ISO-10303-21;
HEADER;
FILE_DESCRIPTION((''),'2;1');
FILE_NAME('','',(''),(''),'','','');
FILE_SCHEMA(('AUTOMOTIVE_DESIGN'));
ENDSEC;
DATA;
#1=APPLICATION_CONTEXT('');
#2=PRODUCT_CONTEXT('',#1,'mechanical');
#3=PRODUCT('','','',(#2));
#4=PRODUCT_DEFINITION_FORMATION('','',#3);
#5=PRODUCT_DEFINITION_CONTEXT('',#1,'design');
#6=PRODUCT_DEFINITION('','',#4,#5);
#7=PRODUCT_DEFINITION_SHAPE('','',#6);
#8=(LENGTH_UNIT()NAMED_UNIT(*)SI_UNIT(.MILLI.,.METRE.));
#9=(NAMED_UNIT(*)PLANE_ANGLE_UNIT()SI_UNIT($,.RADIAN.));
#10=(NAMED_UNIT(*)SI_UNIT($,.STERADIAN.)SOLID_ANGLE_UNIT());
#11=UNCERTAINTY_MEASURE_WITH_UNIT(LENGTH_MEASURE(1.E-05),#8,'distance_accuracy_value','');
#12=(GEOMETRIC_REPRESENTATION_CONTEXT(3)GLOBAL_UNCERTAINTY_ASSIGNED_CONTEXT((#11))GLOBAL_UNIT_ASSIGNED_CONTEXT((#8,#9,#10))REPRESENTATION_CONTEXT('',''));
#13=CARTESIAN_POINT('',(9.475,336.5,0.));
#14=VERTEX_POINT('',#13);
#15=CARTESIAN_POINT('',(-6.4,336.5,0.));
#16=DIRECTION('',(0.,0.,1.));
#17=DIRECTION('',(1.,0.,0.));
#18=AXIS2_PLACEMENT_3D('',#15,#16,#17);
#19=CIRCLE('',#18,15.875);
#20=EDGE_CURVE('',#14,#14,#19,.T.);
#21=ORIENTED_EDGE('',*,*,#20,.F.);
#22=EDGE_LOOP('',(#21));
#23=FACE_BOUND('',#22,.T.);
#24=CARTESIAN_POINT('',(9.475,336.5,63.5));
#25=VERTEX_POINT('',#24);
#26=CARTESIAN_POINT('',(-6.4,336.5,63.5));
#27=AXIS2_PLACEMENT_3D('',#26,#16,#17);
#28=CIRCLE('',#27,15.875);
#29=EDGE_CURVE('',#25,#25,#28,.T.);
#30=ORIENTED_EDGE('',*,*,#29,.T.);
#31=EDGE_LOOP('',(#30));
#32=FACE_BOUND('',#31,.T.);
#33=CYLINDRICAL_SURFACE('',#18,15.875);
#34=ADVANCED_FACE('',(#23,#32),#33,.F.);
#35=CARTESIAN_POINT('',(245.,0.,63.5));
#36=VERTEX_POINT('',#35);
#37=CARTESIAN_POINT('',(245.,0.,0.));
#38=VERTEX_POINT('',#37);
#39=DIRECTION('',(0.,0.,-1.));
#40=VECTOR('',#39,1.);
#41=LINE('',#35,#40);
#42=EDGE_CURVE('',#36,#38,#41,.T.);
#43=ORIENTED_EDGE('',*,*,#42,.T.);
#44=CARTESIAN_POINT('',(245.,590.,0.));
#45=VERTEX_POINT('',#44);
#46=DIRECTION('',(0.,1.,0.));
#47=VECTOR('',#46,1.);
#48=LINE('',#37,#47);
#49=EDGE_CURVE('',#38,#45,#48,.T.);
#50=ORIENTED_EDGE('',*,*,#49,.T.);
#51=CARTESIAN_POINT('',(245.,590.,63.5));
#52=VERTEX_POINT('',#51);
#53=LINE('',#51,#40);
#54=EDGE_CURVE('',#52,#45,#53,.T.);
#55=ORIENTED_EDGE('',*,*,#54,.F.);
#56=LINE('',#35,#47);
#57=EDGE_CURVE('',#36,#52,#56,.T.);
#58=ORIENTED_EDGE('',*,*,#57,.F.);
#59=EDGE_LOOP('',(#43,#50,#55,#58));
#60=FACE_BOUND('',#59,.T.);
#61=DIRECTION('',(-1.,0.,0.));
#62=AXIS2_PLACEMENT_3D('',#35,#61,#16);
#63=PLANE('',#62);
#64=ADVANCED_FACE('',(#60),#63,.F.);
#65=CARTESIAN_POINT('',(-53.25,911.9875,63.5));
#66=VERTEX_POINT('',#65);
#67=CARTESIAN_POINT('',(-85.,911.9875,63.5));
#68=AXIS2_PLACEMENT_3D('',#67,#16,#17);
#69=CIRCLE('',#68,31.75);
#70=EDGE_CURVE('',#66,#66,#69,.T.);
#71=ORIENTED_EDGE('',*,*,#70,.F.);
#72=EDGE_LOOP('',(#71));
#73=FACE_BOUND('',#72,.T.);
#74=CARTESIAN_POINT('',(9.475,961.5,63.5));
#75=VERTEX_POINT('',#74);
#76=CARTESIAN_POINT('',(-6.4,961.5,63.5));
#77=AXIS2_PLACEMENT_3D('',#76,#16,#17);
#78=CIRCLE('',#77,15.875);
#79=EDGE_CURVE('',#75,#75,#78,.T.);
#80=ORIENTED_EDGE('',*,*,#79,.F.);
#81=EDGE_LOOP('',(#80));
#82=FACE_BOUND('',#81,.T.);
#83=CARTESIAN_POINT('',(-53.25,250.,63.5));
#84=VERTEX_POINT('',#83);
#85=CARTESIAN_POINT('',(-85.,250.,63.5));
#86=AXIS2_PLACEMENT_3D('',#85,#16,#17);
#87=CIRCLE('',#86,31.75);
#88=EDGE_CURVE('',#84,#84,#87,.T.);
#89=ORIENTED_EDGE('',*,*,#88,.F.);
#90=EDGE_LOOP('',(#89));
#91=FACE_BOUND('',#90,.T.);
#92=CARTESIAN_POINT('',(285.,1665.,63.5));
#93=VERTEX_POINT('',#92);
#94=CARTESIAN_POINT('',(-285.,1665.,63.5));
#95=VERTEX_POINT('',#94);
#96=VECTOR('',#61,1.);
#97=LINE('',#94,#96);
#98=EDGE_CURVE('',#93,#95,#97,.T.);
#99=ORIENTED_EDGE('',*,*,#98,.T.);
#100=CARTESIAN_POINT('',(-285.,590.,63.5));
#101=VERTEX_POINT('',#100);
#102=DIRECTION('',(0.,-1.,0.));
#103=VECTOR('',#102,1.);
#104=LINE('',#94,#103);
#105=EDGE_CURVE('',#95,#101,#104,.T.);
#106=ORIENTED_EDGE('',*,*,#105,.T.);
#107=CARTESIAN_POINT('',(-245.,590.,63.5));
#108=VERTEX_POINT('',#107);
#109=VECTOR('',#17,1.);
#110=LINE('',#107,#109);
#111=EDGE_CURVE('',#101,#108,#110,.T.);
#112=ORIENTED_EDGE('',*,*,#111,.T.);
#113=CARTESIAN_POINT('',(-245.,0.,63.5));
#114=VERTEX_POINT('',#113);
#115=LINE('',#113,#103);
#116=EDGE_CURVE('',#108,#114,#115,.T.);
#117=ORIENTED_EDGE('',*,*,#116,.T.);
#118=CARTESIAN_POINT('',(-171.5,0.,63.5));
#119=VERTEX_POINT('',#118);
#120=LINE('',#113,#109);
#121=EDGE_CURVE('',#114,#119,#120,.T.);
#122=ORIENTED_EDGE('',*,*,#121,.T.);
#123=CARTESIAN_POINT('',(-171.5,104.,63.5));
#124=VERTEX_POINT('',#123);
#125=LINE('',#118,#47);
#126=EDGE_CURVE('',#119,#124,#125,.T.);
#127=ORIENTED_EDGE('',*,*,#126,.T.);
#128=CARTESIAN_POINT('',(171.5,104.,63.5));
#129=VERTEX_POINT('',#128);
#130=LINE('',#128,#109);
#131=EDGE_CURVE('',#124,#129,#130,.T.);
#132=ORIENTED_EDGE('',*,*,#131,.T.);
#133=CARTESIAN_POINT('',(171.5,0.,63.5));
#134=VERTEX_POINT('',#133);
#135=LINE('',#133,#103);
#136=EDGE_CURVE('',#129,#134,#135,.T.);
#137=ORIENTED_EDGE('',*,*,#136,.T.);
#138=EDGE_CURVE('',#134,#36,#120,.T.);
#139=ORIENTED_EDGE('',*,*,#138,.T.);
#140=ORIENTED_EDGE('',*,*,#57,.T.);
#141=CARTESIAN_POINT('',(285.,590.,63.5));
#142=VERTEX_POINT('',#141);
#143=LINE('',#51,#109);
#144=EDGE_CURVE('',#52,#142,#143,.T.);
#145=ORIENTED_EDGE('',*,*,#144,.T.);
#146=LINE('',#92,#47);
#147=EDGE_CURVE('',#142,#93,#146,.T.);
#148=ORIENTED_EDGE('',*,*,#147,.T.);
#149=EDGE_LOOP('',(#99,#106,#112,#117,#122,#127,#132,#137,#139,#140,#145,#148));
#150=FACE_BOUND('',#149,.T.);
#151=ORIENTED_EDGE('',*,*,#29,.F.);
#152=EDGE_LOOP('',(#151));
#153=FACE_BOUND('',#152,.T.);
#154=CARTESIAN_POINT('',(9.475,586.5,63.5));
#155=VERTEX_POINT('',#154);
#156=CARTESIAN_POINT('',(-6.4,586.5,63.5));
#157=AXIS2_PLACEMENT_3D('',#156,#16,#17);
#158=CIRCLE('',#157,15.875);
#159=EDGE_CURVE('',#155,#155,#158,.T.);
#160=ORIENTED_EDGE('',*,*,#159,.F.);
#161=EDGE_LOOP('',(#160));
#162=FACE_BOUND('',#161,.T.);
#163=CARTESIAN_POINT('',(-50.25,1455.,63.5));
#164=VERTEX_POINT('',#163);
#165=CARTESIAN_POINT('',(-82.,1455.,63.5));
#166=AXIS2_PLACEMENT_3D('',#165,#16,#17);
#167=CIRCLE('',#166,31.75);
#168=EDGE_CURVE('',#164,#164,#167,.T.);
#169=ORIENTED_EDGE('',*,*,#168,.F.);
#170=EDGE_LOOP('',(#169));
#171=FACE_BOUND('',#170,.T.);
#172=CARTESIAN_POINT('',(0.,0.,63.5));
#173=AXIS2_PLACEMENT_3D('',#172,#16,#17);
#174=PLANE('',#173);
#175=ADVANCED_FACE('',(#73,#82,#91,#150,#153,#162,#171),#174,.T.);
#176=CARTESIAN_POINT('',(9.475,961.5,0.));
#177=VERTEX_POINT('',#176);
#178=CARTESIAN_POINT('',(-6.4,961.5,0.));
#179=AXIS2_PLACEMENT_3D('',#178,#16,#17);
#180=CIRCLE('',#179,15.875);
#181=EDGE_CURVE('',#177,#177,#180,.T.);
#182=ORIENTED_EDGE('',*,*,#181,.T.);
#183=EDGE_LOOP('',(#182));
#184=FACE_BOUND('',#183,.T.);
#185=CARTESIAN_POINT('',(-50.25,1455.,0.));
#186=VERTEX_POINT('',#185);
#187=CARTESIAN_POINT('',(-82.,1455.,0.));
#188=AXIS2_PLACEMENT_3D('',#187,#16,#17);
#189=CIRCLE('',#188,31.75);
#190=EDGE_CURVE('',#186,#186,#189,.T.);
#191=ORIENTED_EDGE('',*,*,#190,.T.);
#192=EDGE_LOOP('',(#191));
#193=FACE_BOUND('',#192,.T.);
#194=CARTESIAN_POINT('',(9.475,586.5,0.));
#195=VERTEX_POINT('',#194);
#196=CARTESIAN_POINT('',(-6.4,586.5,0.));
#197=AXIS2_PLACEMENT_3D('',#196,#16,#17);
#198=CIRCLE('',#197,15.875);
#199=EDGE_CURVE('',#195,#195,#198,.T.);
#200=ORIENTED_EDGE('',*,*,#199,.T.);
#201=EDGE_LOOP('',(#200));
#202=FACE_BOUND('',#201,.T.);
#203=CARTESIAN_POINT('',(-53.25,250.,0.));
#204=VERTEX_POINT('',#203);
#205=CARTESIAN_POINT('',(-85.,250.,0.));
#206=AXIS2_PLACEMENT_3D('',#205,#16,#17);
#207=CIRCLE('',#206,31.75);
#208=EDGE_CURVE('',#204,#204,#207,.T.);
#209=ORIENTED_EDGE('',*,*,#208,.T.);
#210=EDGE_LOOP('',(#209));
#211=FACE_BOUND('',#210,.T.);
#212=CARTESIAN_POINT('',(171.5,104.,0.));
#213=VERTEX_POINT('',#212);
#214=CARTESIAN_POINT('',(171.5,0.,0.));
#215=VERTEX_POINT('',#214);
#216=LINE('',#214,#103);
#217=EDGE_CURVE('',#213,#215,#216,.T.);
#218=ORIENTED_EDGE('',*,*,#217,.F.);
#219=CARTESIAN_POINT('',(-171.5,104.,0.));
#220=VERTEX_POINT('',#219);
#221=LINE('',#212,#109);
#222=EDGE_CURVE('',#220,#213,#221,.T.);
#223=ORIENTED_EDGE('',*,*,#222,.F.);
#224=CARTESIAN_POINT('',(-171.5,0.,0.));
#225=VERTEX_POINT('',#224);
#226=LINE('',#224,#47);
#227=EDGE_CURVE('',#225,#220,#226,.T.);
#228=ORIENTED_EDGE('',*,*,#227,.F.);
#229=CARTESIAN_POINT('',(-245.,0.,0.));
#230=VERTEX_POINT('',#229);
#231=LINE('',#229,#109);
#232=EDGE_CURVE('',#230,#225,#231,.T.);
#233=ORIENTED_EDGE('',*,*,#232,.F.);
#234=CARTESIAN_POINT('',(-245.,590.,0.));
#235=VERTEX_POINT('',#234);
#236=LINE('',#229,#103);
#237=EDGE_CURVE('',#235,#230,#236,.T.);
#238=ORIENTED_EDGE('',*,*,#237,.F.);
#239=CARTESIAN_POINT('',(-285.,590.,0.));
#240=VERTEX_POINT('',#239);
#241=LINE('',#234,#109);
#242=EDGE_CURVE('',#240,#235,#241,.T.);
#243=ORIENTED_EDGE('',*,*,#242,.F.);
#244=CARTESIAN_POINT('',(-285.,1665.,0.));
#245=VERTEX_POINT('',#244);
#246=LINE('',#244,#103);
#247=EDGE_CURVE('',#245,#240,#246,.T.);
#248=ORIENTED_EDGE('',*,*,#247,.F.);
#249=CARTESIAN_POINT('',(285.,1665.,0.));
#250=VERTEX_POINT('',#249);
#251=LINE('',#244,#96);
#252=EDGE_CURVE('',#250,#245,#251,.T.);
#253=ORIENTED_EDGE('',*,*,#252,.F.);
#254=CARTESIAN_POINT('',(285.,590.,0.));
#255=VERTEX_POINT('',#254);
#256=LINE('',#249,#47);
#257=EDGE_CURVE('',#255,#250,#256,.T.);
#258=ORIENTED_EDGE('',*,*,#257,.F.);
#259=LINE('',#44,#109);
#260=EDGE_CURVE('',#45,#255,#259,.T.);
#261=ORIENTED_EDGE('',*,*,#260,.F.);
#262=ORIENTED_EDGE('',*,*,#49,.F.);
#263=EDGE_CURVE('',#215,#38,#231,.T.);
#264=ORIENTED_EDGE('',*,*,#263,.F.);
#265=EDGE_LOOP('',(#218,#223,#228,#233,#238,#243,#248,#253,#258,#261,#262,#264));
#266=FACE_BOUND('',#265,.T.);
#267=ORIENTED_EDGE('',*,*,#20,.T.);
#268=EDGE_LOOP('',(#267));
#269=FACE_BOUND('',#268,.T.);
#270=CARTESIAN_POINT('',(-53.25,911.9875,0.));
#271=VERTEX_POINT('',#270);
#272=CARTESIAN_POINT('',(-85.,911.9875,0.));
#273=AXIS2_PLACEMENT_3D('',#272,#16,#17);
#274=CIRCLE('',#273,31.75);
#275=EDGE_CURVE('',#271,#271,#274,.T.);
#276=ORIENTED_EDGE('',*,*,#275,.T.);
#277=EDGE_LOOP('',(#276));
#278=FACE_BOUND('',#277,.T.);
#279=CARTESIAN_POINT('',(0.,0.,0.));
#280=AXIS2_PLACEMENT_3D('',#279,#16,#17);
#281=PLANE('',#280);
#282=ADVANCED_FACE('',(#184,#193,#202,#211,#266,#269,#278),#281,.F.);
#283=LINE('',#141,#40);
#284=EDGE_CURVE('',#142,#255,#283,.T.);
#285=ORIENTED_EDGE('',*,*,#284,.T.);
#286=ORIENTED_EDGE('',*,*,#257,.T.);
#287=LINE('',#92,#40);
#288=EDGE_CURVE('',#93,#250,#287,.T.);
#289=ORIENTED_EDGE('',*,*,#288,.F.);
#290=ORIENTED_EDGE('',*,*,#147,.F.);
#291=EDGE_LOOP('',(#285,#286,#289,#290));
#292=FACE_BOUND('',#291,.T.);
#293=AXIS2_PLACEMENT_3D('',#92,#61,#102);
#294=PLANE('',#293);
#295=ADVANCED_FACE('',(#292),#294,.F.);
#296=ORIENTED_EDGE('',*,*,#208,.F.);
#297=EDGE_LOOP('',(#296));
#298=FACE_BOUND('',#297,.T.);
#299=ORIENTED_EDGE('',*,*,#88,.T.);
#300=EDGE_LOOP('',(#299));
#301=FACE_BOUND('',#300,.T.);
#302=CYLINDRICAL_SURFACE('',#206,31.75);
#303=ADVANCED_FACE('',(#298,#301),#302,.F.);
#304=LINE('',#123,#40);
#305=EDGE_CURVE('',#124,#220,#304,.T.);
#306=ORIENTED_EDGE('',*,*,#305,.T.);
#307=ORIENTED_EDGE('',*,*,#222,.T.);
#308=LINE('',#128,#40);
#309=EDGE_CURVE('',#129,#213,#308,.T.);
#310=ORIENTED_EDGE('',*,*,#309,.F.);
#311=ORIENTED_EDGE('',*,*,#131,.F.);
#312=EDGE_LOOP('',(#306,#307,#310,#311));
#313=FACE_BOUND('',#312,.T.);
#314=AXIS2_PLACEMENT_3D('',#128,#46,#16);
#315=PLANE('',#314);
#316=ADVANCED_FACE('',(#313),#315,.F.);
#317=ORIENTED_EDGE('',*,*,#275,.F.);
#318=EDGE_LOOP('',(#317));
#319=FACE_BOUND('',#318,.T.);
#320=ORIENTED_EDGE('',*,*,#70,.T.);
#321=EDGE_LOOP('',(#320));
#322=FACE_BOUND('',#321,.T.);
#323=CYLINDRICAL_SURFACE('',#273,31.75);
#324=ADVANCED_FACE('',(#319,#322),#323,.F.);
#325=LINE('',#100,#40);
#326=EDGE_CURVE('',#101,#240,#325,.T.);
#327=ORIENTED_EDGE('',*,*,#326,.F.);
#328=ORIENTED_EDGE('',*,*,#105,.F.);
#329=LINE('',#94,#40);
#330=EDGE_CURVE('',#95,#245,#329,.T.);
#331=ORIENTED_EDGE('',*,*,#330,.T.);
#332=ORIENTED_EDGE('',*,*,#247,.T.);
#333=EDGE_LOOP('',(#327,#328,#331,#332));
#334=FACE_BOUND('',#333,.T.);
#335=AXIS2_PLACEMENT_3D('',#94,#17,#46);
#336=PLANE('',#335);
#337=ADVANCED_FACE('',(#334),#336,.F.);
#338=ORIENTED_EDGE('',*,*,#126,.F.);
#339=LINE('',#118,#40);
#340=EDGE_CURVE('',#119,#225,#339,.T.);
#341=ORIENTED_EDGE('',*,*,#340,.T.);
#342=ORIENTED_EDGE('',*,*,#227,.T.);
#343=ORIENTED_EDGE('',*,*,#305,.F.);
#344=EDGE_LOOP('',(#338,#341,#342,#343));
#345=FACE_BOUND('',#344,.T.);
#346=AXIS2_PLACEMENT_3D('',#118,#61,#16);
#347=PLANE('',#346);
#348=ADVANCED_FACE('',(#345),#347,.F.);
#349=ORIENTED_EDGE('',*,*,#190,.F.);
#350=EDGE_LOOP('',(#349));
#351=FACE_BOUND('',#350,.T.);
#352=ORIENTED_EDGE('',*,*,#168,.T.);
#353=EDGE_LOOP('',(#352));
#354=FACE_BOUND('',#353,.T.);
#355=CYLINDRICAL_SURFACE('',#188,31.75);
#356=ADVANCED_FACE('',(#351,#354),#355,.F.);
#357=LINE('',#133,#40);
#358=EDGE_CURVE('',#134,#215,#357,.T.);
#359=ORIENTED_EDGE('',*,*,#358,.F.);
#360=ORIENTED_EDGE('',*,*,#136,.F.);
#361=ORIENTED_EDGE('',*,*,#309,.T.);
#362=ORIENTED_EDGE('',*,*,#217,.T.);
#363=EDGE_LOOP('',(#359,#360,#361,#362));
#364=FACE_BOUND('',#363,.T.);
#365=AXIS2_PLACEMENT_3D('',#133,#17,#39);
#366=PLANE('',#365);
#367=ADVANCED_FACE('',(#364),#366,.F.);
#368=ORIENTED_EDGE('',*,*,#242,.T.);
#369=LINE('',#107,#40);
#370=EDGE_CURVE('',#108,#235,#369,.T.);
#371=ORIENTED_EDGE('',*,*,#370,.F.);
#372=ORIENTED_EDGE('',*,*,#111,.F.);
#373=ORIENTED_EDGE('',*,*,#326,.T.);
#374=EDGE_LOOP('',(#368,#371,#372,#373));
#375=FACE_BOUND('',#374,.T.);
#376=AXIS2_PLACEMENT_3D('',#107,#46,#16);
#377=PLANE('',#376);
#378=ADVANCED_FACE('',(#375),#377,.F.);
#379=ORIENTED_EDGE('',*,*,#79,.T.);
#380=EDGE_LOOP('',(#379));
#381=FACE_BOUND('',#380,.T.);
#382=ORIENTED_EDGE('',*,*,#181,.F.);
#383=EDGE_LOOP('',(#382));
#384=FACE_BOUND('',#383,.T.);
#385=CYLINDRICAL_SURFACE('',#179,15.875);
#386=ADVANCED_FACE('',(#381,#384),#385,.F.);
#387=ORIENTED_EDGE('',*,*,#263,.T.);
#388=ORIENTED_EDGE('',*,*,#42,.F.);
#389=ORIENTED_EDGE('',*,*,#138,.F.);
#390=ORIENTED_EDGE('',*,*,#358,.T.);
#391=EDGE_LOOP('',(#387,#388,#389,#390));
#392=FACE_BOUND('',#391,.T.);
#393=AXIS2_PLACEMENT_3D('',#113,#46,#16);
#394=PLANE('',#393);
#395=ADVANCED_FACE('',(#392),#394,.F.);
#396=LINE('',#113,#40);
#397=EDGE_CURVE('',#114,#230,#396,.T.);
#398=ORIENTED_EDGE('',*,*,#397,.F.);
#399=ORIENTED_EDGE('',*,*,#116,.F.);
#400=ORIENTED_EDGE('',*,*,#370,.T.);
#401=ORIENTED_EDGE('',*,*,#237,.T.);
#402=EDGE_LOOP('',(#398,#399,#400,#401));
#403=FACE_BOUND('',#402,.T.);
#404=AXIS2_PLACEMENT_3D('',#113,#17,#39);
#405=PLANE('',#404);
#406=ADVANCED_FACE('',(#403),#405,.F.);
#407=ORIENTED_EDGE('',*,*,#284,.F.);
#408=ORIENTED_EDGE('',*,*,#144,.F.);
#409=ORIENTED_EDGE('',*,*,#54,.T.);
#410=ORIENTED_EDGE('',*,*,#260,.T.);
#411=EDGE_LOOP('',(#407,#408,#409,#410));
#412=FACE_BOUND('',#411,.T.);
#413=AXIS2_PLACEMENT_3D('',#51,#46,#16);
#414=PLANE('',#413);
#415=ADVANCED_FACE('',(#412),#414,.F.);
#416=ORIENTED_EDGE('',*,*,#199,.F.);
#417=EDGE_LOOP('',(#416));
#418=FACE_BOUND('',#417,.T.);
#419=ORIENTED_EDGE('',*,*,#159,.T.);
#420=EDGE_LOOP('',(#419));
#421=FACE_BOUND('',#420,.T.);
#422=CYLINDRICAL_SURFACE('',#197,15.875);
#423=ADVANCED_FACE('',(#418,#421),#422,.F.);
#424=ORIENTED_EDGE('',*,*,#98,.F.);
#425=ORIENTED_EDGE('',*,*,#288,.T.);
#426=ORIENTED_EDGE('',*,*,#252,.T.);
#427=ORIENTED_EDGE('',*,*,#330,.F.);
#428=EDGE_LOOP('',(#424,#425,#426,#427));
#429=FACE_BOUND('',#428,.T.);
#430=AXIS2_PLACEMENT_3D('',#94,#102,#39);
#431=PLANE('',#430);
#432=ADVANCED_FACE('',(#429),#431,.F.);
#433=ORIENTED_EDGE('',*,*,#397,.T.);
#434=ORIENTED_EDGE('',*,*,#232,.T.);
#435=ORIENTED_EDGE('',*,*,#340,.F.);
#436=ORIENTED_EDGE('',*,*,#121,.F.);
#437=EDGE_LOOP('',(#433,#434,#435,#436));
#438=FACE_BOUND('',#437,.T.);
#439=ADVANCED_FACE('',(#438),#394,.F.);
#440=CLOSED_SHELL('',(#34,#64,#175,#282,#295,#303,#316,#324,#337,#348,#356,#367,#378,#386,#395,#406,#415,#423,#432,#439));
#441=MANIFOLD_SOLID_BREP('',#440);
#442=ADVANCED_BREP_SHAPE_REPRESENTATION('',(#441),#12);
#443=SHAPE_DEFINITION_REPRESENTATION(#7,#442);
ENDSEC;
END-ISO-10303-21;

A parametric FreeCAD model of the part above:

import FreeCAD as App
import Part
import Sketcher

V = App.Vector


def add_polygon(sketch, points):
    """Adds a closed chain of lines whose ends are joined by coincident constraints."""
    first, n = sketch.GeometryCount, len(points)
    for a, b in zip(points, points[1:] + points[:1]):
        sketch.addGeometry(Part.LineSegment(App.Vector(*a, 0), App.Vector(*b, 0)), False)
    for i in range(n):
        sketch.addConstraint(Sketcher.Constraint("Coincident", first + i, 2, first + (i + 1) % n, 1))

doc = App.newDocument("Part")
body = doc.addObject("PartDesign::Body", "Body")

# Sketch on XY plane
sketch1 = body.newObject("Sketcher::SketchObject", "Sketch")
sketch1.AttachmentSupport = (doc.getObject("XY_Plane"), [""])
sketch1.MapMode = "FlatFace"
add_polygon(sketch1, [(-245, 0), (245, 0), (245, 590), (285, 590), (285, 1665), (-285, 1665), (-285, 590), (-245, 590)])  # lines 0-7
sketch1.addConstraint([
    Sketcher.Constraint("Horizontal", 0),
    Sketcher.Constraint("Vertical", 1),
    Sketcher.Constraint("Horizontal", 2),
    Sketcher.Constraint("Vertical", 3),
    Sketcher.Constraint("Horizontal", 4),
    Sketcher.Constraint("Vertical", 5),
    Sketcher.Constraint("Horizontal", 6),
    Sketcher.Constraint("Vertical", 7),
    Sketcher.Constraint("Symmetric", 0, 2, 7, 2, -1, 1),
    Sketcher.Constraint("Symmetric", 2, 2, 5, 2, -2),
    Sketcher.Constraint("DistanceX", 0, 1, 0, 2, 490.0),
    Sketcher.Constraint("DistanceX", 2, 1, 2, 2, 40.0),
    Sketcher.Constraint("DistanceY", 1, 1, 1, 2, 590.0),
    Sketcher.Constraint("DistanceY", 3, 1, 3, 2, 1075.0),
])
pad1 = body.newObject("PartDesign::Pad", "Pad")
pad1.Profile = sketch1
pad1.Length = 63.5

# Sketch on XY plane
sketch2 = body.newObject("Sketcher::SketchObject", "Sketch001")
sketch2.AttachmentSupport = (doc.getObject("XY_Plane"), [""])
sketch2.MapMode = "FlatFace"
add_polygon(sketch2, [(171.5, 104), (171.5, 0), (-171.5, 0), (-171.5, 104)])  # lines 0-3
sketch2.addConstraint([
    Sketcher.Constraint("Vertical", 0),
    Sketcher.Constraint("Horizontal", 1),
    Sketcher.Constraint("Vertical", 2),
    Sketcher.Constraint("Horizontal", 3),
    Sketcher.Constraint("Symmetric", 0, 2, 1, 2, -1, 1),
    Sketcher.Constraint("DistanceX", 1, 2, 1, 1, 343.0),
    Sketcher.Constraint("DistanceY", 0, 2, 0, 1, 104.0),
])
pocket1 = body.newObject("PartDesign::Pocket", "Pocket")
pocket1.Profile = sketch2
pocket1.Type = "ThroughAll"
pocket1.Reversed = True

# Sketch on XY plane
sketch3 = body.newObject("Sketcher::SketchObject", "Sketch002")
sketch3.AttachmentSupport = (doc.getObject("XY_Plane"), [""])
sketch3.MapMode = "FlatFace"
sketch3.AttachmentOffset = App.Placement(V(0, 0, 63.5), App.Rotation())
sketch3.addGeometry(Part.Circle(V(-82, 1455, 0), V(0, 0, 1), 31.75), False)
sketch3.addConstraint([
    Sketcher.Constraint("Diameter", 0, 63.5),
    Sketcher.Constraint("DistanceX", 0, 3, -1, 1, 82.0),
    Sketcher.Constraint("DistanceY", -1, 1, 0, 3, 1455.0),
])
pocket2 = body.newObject("PartDesign::Pocket", "Pocket001")
pocket2.Profile = sketch3
pocket2.Type = "ThroughAll"

# Sketch on XY plane
sketch4 = body.newObject("Sketcher::SketchObject", "Sketch003")
sketch4.AttachmentSupport = (doc.getObject("XY_Plane"), [""])
sketch4.MapMode = "FlatFace"
sketch4.AttachmentOffset = App.Placement(V(0, 0, 63.5), App.Rotation())
sketch4.addGeometry([
    Part.Circle(V(-85, 250, 0), V(0, 0, 1), 31.75),
    Part.Circle(V(-85, 911.9875, 0), V(0, 0, 1), 31.75),
], False)
sketch4.addConstraint([
    Sketcher.Constraint("Equal", 0, 1),
    Sketcher.Constraint("Vertical", 0, 3, 1, 3),
    Sketcher.Constraint("Diameter", 0, 63.5),
    Sketcher.Constraint("DistanceX", 0, 3, -1, 1, 85.0),
    Sketcher.Constraint("DistanceY", -1, 1, 0, 3, 250.0),
    Sketcher.Constraint("DistanceY", -1, 1, 1, 3, 911.9875),
])
pocket3 = body.newObject("PartDesign::Pocket", "Pocket002")
pocket3.Profile = sketch4
pocket3.Type = "ThroughAll"

# Sketch on XY plane
sketch5 = body.newObject("Sketcher::SketchObject", "Sketch004")
sketch5.AttachmentSupport = (doc.getObject("XY_Plane"), [""])
sketch5.MapMode = "FlatFace"
sketch5.AttachmentOffset = App.Placement(V(0, 0, 63.5), App.Rotation())
sketch5.addGeometry([
    Part.Circle(V(-6.4, 336.5, 0), V(0, 0, 1), 15.875),
    Part.Circle(V(-6.4, 586.5, 0), V(0, 0, 1), 15.875),
    Part.Circle(V(-6.4, 961.5, 0), V(0, 0, 1), 15.875),
], False)
sketch5.addConstraint([
    Sketcher.Constraint("Equal", 0, 1),
    Sketcher.Constraint("Equal", 1, 2),
    Sketcher.Constraint("Vertical", 0, 3, 1, 3),
    Sketcher.Constraint("Vertical", 1, 3, 2, 3),
    Sketcher.Constraint("Diameter", 0, 31.75),
    Sketcher.Constraint("DistanceY", 0, 3, 1, 3, 250.0),
    Sketcher.Constraint("DistanceY", 1, 3, 2, 3, 375.0),
    Sketcher.Constraint("DistanceX", 0, 3, -1, 1, 6.4),
    Sketcher.Constraint("DistanceY", -1, 1, 0, 3, 336.5),
])
pocket4 = body.newObject("PartDesign::Pocket", "Pocket003")
pocket4.Profile = sketch5
pocket4.Type = "ThroughAll"

doc.recompute()
